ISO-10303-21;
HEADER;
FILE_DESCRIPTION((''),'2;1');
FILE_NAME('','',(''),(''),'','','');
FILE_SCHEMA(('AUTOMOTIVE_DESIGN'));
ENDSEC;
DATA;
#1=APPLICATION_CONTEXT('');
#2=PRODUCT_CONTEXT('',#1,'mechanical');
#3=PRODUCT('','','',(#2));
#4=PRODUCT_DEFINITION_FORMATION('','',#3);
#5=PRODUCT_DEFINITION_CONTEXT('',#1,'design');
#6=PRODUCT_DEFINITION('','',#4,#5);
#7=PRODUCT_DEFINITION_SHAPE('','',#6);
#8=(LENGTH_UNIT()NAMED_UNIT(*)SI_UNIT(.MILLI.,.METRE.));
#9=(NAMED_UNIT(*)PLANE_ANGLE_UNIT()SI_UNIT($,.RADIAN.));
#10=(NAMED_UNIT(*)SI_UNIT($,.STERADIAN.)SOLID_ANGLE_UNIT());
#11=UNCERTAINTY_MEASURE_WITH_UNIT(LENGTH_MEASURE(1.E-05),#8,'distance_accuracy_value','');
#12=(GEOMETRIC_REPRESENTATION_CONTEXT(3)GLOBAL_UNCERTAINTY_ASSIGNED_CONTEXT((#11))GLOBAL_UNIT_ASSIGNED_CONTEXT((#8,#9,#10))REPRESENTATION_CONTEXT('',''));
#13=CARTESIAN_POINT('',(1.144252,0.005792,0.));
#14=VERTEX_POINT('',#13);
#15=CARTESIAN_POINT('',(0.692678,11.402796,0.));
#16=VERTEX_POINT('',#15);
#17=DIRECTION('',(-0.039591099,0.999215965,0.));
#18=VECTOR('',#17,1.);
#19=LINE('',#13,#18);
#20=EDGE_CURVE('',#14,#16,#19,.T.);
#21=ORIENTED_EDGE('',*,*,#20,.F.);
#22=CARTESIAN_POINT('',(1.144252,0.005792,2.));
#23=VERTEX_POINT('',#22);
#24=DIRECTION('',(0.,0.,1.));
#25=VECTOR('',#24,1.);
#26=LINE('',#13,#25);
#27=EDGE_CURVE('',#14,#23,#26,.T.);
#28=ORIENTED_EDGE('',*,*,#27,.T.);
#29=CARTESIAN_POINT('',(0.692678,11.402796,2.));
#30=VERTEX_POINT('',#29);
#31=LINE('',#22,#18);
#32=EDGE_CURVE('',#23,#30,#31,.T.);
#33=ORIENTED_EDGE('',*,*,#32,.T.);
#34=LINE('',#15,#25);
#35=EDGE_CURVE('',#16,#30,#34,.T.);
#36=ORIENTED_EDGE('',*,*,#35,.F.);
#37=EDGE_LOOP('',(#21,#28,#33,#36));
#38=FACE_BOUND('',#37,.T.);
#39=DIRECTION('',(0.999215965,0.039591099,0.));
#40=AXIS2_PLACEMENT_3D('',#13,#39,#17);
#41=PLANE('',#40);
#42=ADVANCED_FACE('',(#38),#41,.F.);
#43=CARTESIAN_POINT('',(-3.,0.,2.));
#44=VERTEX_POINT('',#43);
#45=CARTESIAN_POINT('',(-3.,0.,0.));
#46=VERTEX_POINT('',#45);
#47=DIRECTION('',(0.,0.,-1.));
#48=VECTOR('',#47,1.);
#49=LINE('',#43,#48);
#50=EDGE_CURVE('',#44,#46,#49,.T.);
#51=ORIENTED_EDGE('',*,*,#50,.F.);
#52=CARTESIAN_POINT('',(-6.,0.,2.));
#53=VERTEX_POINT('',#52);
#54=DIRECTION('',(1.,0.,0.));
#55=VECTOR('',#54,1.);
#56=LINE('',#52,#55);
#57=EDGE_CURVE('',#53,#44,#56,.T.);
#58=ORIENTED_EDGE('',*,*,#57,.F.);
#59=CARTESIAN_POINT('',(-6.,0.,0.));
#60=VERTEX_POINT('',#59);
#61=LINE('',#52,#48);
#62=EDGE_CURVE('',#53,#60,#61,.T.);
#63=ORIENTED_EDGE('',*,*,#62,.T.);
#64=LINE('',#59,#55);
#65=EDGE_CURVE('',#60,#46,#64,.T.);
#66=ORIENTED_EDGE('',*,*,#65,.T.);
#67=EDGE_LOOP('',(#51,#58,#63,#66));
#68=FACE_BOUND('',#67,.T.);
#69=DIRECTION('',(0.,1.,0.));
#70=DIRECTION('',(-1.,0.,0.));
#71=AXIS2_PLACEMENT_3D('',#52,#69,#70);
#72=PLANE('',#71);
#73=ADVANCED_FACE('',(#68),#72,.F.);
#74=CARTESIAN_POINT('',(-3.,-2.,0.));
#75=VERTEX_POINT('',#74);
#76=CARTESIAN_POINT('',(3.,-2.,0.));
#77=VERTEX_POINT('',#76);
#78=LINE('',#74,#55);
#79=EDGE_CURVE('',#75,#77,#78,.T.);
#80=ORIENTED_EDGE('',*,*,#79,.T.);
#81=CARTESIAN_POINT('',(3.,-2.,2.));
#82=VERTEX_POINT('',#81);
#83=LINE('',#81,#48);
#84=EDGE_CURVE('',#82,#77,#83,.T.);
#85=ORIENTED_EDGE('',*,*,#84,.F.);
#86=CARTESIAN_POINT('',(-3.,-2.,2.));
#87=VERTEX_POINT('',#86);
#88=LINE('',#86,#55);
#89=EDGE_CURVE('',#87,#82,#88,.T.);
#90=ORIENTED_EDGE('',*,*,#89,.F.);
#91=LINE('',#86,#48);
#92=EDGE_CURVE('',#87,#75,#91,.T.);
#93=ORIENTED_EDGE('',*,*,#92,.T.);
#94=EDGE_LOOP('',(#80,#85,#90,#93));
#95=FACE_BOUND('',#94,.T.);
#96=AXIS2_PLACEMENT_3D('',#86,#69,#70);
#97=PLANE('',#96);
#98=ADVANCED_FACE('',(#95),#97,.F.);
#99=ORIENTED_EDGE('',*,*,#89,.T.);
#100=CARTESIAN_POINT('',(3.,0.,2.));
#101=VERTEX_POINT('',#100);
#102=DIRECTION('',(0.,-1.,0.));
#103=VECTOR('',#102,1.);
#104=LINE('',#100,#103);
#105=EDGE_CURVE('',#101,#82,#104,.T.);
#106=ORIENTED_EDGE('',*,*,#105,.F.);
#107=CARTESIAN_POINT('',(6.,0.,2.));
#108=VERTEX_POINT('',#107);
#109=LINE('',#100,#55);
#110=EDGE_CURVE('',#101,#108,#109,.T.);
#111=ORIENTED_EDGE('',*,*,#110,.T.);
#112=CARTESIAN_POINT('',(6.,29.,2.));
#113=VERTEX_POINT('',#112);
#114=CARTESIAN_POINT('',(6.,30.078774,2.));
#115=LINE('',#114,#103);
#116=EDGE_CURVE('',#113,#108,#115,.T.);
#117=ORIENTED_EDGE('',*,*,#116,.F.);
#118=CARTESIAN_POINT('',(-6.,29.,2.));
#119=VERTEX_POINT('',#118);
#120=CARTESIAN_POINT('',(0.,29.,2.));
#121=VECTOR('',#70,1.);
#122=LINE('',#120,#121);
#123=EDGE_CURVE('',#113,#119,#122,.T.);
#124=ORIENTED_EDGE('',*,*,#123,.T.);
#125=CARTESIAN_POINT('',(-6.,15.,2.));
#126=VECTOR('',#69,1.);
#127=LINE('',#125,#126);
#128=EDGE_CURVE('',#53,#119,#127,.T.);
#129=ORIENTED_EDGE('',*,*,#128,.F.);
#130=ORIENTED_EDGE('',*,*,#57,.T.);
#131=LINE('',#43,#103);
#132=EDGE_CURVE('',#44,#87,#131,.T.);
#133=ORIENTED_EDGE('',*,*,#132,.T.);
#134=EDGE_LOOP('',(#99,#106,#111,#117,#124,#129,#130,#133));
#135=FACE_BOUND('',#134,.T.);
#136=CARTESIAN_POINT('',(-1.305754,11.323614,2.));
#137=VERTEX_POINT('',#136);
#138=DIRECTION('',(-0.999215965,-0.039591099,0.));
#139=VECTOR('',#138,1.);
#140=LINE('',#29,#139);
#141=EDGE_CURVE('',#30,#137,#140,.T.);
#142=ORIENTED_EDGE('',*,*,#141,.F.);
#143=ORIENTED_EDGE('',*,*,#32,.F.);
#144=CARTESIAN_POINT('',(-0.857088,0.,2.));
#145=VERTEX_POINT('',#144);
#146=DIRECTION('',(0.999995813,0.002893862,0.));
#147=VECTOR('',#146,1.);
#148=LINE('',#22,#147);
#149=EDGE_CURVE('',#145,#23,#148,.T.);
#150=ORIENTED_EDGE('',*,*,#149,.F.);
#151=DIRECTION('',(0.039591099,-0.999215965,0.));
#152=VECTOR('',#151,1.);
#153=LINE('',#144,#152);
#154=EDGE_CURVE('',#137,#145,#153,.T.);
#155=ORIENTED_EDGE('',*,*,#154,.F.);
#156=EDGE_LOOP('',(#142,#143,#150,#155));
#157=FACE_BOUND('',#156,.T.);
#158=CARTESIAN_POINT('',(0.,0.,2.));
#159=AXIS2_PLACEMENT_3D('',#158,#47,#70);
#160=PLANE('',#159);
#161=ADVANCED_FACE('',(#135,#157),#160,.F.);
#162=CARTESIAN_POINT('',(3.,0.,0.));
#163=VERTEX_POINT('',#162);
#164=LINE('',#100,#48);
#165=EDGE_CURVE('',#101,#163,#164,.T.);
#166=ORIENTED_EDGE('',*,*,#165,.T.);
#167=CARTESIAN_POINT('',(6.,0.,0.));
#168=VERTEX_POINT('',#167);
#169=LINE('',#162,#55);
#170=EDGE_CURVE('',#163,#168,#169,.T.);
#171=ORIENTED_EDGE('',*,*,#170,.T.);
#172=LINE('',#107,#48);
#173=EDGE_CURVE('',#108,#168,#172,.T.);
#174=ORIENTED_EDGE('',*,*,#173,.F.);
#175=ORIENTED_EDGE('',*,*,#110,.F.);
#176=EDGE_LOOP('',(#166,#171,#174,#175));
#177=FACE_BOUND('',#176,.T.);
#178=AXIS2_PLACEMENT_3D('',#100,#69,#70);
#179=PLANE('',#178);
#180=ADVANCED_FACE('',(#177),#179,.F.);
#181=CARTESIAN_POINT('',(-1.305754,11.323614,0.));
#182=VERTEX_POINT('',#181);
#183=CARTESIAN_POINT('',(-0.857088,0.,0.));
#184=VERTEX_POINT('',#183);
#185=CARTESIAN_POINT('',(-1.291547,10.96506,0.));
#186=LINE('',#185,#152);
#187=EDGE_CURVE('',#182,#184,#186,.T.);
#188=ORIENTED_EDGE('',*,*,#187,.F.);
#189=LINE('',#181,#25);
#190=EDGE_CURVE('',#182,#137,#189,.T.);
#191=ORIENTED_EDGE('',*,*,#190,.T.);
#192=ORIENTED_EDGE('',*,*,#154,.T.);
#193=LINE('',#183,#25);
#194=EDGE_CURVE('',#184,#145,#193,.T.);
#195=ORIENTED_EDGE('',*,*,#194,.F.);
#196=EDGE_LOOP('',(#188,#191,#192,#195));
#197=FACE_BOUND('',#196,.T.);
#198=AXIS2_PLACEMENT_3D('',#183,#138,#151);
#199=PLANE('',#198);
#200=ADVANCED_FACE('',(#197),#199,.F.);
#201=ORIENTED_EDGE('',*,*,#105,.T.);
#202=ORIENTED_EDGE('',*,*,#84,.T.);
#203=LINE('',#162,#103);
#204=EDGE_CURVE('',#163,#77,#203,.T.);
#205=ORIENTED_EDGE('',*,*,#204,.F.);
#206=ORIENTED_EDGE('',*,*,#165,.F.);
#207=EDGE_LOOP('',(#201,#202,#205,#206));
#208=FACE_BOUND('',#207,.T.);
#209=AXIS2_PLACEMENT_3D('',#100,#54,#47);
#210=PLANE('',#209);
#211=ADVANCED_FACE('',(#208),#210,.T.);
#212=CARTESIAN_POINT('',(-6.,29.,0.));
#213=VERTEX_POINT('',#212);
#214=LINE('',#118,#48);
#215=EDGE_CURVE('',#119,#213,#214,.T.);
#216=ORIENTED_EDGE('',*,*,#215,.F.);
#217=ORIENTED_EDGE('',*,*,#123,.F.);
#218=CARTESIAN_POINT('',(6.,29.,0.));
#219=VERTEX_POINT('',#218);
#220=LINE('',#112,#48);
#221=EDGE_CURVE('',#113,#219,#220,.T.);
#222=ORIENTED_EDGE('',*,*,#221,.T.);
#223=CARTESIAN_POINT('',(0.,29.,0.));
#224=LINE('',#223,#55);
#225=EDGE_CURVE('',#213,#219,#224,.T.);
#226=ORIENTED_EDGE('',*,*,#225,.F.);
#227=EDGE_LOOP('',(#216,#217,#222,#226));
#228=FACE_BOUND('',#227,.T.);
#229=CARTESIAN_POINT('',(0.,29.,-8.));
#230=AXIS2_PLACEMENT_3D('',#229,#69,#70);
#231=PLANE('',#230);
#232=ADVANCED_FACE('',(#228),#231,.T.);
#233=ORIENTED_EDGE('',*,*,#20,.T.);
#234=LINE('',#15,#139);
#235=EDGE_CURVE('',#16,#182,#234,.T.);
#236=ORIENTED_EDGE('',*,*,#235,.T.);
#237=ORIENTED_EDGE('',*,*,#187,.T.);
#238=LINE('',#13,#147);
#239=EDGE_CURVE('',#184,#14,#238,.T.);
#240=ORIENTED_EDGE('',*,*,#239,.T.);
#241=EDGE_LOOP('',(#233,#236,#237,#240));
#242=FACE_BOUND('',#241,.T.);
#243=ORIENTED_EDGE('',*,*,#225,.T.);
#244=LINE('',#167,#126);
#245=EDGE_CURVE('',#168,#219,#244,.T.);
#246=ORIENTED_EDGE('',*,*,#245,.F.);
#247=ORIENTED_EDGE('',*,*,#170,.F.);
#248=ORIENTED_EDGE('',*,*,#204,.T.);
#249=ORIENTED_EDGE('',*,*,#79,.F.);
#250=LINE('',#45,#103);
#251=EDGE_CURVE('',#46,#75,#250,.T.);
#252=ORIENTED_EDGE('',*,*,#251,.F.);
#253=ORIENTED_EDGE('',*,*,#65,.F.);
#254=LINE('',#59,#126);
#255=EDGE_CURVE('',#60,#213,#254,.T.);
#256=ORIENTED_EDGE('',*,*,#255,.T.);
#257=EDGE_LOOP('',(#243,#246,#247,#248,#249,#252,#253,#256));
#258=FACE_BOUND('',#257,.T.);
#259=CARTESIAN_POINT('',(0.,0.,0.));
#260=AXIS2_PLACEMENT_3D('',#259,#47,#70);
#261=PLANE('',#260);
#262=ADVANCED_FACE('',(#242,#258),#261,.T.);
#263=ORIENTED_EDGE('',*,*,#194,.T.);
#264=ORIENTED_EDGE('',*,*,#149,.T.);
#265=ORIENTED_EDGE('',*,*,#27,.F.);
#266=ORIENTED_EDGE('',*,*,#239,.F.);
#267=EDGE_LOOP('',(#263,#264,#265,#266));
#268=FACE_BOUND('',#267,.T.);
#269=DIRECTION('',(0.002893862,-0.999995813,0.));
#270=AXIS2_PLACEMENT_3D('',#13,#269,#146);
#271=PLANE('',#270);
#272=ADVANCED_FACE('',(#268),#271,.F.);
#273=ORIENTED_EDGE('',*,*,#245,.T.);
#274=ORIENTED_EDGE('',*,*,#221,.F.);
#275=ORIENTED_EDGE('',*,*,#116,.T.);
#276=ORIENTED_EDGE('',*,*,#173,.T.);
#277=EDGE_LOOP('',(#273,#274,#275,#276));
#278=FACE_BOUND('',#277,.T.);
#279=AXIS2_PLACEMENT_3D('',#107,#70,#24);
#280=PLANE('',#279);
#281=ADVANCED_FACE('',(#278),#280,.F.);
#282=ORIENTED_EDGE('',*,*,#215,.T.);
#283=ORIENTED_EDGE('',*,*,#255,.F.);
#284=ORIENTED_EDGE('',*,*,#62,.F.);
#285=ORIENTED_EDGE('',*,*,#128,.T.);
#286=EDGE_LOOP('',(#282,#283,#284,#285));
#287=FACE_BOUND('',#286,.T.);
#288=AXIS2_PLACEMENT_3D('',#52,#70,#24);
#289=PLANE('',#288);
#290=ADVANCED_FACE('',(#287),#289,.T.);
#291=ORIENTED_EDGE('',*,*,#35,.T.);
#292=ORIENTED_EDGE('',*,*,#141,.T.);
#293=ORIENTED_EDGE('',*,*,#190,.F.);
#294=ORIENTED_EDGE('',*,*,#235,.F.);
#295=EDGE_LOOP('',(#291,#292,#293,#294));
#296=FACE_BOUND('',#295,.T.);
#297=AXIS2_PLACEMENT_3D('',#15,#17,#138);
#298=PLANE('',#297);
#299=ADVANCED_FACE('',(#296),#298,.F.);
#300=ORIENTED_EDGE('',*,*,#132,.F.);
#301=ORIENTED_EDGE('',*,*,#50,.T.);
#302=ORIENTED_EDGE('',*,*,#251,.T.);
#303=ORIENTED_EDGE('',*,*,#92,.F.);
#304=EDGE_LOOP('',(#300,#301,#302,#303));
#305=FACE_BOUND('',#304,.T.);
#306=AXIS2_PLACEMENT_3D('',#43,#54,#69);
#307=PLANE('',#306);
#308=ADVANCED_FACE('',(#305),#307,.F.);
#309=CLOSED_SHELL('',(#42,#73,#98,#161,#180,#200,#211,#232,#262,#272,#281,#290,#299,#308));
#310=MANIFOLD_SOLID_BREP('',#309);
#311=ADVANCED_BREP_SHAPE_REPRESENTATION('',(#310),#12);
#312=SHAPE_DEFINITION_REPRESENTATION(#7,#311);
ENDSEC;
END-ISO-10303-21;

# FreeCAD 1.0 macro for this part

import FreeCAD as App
import Part
import Sketcher

V = App.Vector


def add_polygon(sketch, points):
    """Adds a closed chain of lines whose ends are joined by coincident constraints."""
    first, n = sketch.GeometryCount, len(points)
    for a, b in zip(points, points[1:] + points[:1]):
        sketch.addGeometry(Part.LineSegment(App.Vector(*a, 0), App.Vector(*b, 0)), False)
    for i in range(n):
        sketch.addConstraint(Sketcher.Constraint("Coincident", first + i, 2, first + (i + 1) % n, 1))

doc = App.newDocument("Part")
body = doc.addObject("PartDesign::Body", "Body")

# Sketch on XY plane
sketch1 = body.newObject("Sketcher::SketchObject", "Sketch")
sketch1.AttachmentSupport = (doc.getObject("XY_Plane"), [""])
sketch1.MapMode = "FlatFace"
add_polygon(sketch1, [(-6, 30.1), (-6, 0), (-3, 0), (-3, -2), (3, -2), (3, 0), (6, 0), (6, 30.1)])  # lines 0-7
sketch1.addConstraint([
    Sketcher.Constraint("Vertical", 0),
    Sketcher.Constraint("Horizontal", 1),
    Sketcher.Constraint("Vertical", 2),
    Sketcher.Constraint("Horizontal", 3),
    Sketcher.Constraint("Vertical", 4),
    Sketcher.Constraint("Horizontal", 5),
    Sketcher.Constraint("Vertical", 6),
    Sketcher.Constraint("Horizontal", 7),
    Sketcher.Constraint("Symmetric", 1, 2, 4, 2, -1, 1),
    Sketcher.Constraint("Symmetric", 0, 2, 5, 2, -2),
    Sketcher.Constraint("DistanceX", 1, 1, 1, 2, 3.0),
    Sketcher.Constraint("DistanceX", 3, 1, 3, 2, 6.0),
    Sketcher.Constraint("DistanceY", 2, 2, 2, 1, 2.0),
    Sketcher.Constraint("DistanceY", 0, 2, 0, 1, 30.078774),
])
pad1 = body.newObject("PartDesign::Pad", "Pad")
pad1.Profile = sketch1
pad1.Length = 2

# Sketch on XY plane
sketch2 = body.newObject("Sketcher::SketchObject", "Sketch001")
sketch2.AttachmentSupport = (doc.getObject("XY_Plane"), [""])
sketch2.MapMode = "FlatFace"
sketch2.AttachmentOffset = App.Placement(V(0, 0, 2), App.Rotation())
add_polygon(sketch2, [(10, 29), (10, 34), (-10, 34), (-10, 29)])  # lines 0-3
sketch2.addConstraint([
    Sketcher.Constraint("Vertical", 0),
    Sketcher.Constraint("Horizontal", 1),
    Sketcher.Constraint("Vertical", 2),
    Sketcher.Constraint("Horizontal", 3),
    Sketcher.Constraint("DistanceY", -1, 1, 2, 2, 29.0),
    Sketcher.Constraint("DistanceX", 1, 2, -1, 1, 9.585001),
    Sketcher.Constraint("DistanceX", 1, 2, 1, 1, 19.88388),
    Sketcher.Constraint("DistanceY", 0, 1, 0, 2, 5.143483),
])
pocket1 = body.newObject("PartDesign::Pocket", "Pocket")
pocket1.Profile = sketch2
pocket1.Length = 10

# Sketch on XY plane
sketch3 = body.newObject("Sketcher::SketchObject", "Sketch002")
sketch3.AttachmentSupport = (doc.getObject("XY_Plane"), [""])
sketch3.MapMode = "FlatFace"
sketch3.AttachmentOffset = App.Placement(V(0, 0, 2), App.Rotation())
add_polygon(sketch3, [(-0.857088, 0), (1.144252, 0.005792), (0.692678, 11.402796), (-1.305754, 11.323614), (-1.291547, 10.96506)])  # lines 0-4
sketch3.addConstraint([
    Sketcher.Constraint("PointOnObject", 4, 2, -1),
    Sketcher.Constraint("Distance", 2, 2.0),
    Sketcher.Constraint("DistanceX", 3, 2, 0, 2, 2.435799),
    Sketcher.Constraint("Distance", 0, 2.001348),
    Sketcher.Constraint("DistanceX", -1, 1, 0, 2, 1.144252),
    Sketcher.Constraint("DistanceY", -1, 1, 0, 2, 0.005792),
    Sketcher.Constraint("DistanceY", -1, 1, 3, 2, 10.96506),
    Sketcher.Constraint("DistanceX", 2, 2, 1, 2, 1.998432),
    Sketcher.Constraint("Distance", 1, 11.405947),
    Sketcher.Constraint("DistanceX", -1, 1, 1, 2, 0.692678),
])
pocket2 = body.newObject("PartDesign::Pocket", "Pocket001")
pocket2.Profile = sketch3
pocket2.Length = 2

doc.recompute()
